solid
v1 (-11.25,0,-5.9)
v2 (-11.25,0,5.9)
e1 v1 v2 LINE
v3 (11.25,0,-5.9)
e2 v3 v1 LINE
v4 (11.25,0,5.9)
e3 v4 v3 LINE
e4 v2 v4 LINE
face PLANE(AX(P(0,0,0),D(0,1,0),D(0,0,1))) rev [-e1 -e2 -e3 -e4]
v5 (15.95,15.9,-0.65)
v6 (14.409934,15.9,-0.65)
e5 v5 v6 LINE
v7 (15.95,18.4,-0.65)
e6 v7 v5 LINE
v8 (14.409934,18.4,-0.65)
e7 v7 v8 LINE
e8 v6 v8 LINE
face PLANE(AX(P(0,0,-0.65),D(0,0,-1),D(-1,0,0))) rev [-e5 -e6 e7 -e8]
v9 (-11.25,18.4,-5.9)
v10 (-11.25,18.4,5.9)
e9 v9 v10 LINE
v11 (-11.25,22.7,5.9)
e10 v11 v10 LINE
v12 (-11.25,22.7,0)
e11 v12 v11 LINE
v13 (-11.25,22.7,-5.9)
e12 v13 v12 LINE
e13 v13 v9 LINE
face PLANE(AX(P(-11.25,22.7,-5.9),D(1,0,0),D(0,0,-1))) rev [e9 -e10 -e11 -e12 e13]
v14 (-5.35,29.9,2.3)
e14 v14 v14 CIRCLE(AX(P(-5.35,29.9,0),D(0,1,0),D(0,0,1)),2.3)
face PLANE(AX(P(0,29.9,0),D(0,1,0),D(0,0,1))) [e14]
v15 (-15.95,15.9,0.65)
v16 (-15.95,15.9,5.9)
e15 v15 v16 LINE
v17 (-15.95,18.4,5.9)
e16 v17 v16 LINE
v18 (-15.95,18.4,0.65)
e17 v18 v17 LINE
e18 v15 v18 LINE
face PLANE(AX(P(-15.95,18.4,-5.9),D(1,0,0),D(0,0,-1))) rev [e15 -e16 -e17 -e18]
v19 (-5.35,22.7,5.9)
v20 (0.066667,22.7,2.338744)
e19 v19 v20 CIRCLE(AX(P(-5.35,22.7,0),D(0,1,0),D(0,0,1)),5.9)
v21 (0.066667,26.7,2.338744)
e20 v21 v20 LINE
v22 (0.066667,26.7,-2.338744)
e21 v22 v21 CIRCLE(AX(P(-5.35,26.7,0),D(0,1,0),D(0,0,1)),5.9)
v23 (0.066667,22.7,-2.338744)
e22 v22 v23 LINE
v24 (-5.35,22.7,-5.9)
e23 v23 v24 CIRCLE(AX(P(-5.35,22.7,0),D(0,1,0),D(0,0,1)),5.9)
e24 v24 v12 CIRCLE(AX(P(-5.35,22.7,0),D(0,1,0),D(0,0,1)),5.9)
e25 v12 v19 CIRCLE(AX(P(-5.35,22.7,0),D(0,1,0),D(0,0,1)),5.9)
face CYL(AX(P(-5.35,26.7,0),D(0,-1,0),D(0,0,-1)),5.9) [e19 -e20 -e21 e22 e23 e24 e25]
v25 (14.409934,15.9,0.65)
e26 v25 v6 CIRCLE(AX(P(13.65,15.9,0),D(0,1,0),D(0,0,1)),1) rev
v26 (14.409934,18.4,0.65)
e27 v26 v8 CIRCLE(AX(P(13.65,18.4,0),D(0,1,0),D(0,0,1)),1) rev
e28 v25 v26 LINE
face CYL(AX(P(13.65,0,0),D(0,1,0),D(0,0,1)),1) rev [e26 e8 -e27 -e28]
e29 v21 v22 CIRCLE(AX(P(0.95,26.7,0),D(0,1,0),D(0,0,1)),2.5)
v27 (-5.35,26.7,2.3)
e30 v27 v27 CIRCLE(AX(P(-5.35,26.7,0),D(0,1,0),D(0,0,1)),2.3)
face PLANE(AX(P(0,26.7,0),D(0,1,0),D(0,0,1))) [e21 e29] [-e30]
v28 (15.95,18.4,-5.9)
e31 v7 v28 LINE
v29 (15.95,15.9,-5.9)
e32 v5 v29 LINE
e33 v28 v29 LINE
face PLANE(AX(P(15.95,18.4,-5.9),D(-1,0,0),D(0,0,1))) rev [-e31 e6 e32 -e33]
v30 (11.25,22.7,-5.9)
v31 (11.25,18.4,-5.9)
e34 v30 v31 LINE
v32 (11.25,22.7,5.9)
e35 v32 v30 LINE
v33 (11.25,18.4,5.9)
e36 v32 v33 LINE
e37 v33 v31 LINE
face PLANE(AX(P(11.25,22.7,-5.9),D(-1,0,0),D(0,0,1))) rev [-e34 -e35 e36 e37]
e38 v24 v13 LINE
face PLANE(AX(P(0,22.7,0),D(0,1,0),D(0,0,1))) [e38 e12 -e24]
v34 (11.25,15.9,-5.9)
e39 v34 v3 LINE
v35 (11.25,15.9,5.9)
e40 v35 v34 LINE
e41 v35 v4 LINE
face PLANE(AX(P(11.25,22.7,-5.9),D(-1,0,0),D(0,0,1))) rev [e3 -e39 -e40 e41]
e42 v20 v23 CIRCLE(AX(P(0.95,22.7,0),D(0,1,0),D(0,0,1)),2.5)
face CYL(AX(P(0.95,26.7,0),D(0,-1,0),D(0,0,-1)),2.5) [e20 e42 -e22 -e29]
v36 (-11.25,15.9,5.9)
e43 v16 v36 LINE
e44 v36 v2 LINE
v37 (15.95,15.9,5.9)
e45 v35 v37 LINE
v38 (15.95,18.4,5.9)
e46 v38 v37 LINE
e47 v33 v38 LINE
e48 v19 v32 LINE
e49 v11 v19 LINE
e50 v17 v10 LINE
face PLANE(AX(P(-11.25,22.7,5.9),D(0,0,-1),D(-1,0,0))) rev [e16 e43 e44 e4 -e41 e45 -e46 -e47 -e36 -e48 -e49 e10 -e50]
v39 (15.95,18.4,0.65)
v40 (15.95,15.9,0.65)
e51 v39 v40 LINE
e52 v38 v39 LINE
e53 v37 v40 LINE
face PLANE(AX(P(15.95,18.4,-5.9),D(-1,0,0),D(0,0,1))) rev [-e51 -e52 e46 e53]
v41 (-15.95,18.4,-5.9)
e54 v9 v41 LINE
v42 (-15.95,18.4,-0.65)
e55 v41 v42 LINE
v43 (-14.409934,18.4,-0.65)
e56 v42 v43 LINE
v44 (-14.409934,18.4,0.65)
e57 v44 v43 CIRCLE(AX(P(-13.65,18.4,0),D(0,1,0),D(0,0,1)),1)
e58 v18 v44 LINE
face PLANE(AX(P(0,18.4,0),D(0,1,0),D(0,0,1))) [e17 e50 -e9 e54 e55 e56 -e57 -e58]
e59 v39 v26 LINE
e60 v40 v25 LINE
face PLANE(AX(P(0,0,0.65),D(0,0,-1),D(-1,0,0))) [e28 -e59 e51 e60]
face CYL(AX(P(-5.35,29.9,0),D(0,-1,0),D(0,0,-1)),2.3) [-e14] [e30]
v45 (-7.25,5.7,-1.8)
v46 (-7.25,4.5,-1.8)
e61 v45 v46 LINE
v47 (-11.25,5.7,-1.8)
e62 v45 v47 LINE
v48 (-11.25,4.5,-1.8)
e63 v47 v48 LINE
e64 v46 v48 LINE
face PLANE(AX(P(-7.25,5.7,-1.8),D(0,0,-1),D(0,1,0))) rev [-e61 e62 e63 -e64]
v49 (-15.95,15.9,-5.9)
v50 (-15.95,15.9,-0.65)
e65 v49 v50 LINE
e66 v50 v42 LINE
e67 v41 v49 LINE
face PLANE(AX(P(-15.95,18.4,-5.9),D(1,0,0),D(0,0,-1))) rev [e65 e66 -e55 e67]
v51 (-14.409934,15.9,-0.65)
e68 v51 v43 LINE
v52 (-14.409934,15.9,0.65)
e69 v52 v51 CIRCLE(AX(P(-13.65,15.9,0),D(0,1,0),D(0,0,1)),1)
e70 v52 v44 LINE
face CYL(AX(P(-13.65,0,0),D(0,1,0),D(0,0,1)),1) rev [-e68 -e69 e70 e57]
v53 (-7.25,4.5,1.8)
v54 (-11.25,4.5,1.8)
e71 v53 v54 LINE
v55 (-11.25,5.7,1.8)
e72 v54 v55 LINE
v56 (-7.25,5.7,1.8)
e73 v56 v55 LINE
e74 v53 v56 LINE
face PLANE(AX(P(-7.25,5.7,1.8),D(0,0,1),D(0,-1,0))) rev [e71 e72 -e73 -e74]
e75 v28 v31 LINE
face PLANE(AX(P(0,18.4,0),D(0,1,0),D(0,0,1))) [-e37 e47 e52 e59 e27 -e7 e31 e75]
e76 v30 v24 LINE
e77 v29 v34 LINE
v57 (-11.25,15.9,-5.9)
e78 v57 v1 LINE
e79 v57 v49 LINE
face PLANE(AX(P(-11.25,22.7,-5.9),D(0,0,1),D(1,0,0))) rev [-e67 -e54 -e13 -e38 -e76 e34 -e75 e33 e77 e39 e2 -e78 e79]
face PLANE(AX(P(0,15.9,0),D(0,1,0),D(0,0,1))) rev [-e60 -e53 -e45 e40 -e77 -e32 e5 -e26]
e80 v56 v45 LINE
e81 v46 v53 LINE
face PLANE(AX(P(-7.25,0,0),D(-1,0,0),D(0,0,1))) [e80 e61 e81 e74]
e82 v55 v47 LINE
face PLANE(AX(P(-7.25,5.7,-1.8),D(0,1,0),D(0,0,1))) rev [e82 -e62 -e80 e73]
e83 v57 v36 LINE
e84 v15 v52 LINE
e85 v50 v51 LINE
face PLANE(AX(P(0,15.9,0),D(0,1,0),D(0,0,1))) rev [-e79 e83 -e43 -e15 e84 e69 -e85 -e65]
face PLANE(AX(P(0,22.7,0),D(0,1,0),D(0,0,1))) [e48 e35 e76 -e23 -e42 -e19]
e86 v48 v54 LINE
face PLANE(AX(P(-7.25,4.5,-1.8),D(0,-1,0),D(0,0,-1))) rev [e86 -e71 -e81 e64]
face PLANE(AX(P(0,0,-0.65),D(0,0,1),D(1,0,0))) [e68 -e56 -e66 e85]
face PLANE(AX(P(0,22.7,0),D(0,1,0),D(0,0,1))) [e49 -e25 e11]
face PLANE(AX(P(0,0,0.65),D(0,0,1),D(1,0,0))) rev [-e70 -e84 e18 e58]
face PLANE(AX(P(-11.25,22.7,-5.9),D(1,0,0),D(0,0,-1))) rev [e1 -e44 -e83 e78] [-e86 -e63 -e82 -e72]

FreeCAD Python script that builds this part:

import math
import FreeCAD as App
import Part
import Sketcher

V = App.Vector


def add_polygon(sketch, points):
    """Adds a closed chain of lines whose ends are joined by coincident constraints."""
    first, n = sketch.GeometryCount, len(points)
    for a, b in zip(points, points[1:] + points[:1]):
        sketch.addGeometry(Part.LineSegment(App.Vector(*a, 0), App.Vector(*b, 0)), False)
    for i in range(n):
        sketch.addConstraint(Sketcher.Constraint("Coincident", first + i, 2, first + (i + 1) % n, 1))

doc = App.newDocument("Part")
params = doc.addObject("Spreadsheet::Sheet", "Params")
for row, (alias, value) in enumerate([
    ("sketch1_width", "22.5 mm"),
    ("sketch1_height", "11.8 mm"),
    ("pad1_length", "22.7 mm"),
    ("sketch2_width", "31.9 mm"),
    ("sketch2_height", "11.8 mm"),
    ("pad2_length", "2.5 mm"),
    ("sketch3_radius", "1 mm"),
    ("sketch3_height", "1.3 mm"),
    ("sketch4_diameter", "4.6 mm"),
    ("sketch4_radius", "2.5 mm"),
    ("sketch4_radius2", "5.9 mm"),
    ("pad3_length", "4 mm"),
    ("sketch5_diameter", "4.6 mm"),
    ("pad4_length", "7.2 mm"),
    ("sketch6_width", "1.2 mm"),
    ("sketch6_height", "3.6 mm"),
    ("pocket2_length", "4 mm"),
], start=1):
    params.set(f"A{row}", alias)
    params.set(f"B{row}", "=" + value)
    params.setAlias(f"B{row}", alias)

body = doc.addObject("PartDesign::Body", "Body")

sketch1 = body.newObject("Sketcher::SketchObject", "Sketch")
sketch1.AttachmentSupport = (doc.getObject("XZ_Plane"), [""])
sketch1.MapMode = "FlatFace"
add_polygon(sketch1, [(-11, -6), (-11, 6), (11, 6), (11, -6)])
sketch1.addConstraint(Sketcher.Constraint("Vertical", 0))
sketch1.addConstraint(Sketcher.Constraint("Horizontal", 1))
sketch1.addConstraint(Sketcher.Constraint("Vertical", 2))
sketch1.addConstraint(Sketcher.Constraint("Horizontal", 3))
sketch1.addConstraint(Sketcher.Constraint("Symmetric", 0, 2, 2, 2, -1, 1))
sketch1.addConstraint(Sketcher.Constraint("DistanceX", 1, 1, 1, 2, 22.5))
sketch1.addConstraint(Sketcher.Constraint("DistanceY", 0, 1, 0, 2, 11.8))
sketch1.setExpression("Constraints[9]", "Params.sketch1_width")
sketch1.setExpression("Constraints[10]", "Params.sketch1_height")
pad1 = body.newObject("PartDesign::Pad", "Pad")
pad1.Profile = sketch1
pad1.setExpression("Length", "Params.pad1_length")
pad1.Reversed = True

sketch2 = body.newObject("Sketcher::SketchObject", "Sketch001")
sketch2.AttachmentSupport = (doc.getObject("XZ_Plane"), [""])
sketch2.MapMode = "FlatFace"
sketch2.AttachmentOffset = App.Placement(V(0, 0, -15.9), App.Rotation())
add_polygon(sketch2, [(-16, -6), (-16, 6), (16, 6), (16, -6)])
sketch2.addConstraint(Sketcher.Constraint("Vertical", 0))
sketch2.addConstraint(Sketcher.Constraint("Horizontal", 1))
sketch2.addConstraint(Sketcher.Constraint("Vertical", 2))
sketch2.addConstraint(Sketcher.Constraint("Horizontal", 3))
sketch2.addConstraint(Sketcher.Constraint("Symmetric", 0, 2, 2, 2, -1, 1))
sketch2.addConstraint(Sketcher.Constraint("DistanceX", 1, 1, 1, 2, 31.9))
sketch2.addConstraint(Sketcher.Constraint("DistanceY", 0, 1, 0, 2, 11.8))
sketch2.setExpression("Constraints[9]", "Params.sketch2_width")
sketch2.setExpression("Constraints[10]", "Params.sketch2_height")
pad2 = body.newObject("PartDesign::Pad", "Pad001")
pad2.Profile = sketch2
pad2.setExpression("Length", "Params.pad2_length")
pad2.Reversed = True

sketch3 = body.newObject("Sketcher::SketchObject", "Sketch002")
sketch3.AttachmentSupport = (doc.getObject("XZ_Plane"), [""])
sketch3.MapMode = "FlatFace"
sketch3.AttachmentOffset = App.Placement(V(0, 0, -18.4), App.Rotation())
sketch3.addGeometry(Part.LineSegment(V(-14.4, -0.7, 0), V(-15.9, -0.7, 0)), False)
sketch3.addGeometry(Part.LineSegment(V(-15.9, -0.7, 0), V(-15.9, 0.7, 0)), False)
sketch3.addGeometry(Part.LineSegment(V(-15.9, 0.7, 0), V(-14.4, 0.7, 0)), False)
sketch3.addGeometry(Part.ArcOfCircle(Part.Circle(V(-13.7, 0, 0), V(0, 0, 1), 1), math.radians(-139), math.radians(139)), False)
sketch3.addGeometry(Part.ArcOfCircle(Part.Circle(V(13.7, 0, 0), V(0, 0, 1), 1), math.radians(41), math.radians(319)), False)
sketch3.addGeometry(Part.LineSegment(V(14.4, 0.7, 0), V(15.9, 0.7, 0)), False)
sketch3.addGeometry(Part.LineSegment(V(15.9, 0.7, 0), V(15.9, -0.7, 0)), False)
sketch3.addGeometry(Part.LineSegment(V(15.9, -0.7, 0), V(14.4, -0.7, 0)), False)
sketch3.addConstraint(Sketcher.Constraint("Coincident", 0, 2, 1, 1))
sketch3.addConstraint(Sketcher.Constraint("Coincident", 1, 2, 2, 1))
sketch3.addConstraint(Sketcher.Constraint("Coincident", 2, 2, 3, 2))
sketch3.addConstraint(Sketcher.Constraint("Coincident", 3, 1, 0, 1))
sketch3.addConstraint(Sketcher.Constraint("Coincident", 4, 1, 5, 1))
sketch3.addConstraint(Sketcher.Constraint("Coincident", 5, 2, 6, 1))
sketch3.addConstraint(Sketcher.Constraint("Coincident", 6, 2, 7, 1))
sketch3.addConstraint(Sketcher.Constraint("Coincident", 7, 2, 4, 2))
sketch3.addConstraint(Sketcher.Constraint("Horizontal", 0))
sketch3.addConstraint(Sketcher.Constraint("Vertical", 1))
sketch3.addConstraint(Sketcher.Constraint("Horizontal", 2))
sketch3.addConstraint(Sketcher.Constraint("Horizontal", 5))
sketch3.addConstraint(Sketcher.Constraint("Vertical", 6))
sketch3.addConstraint(Sketcher.Constraint("Horizontal", 7))
sketch3.addConstraint(Sketcher.Constraint("Equal", 3, 4))
sketch3.addConstraint(Sketcher.Constraint("Symmetric", 3, 3, 4, 3, -1, 1))
sketch3.addConstraint(Sketcher.Constraint("Symmetric", 0, 2, 5, 2, -1, 1))
sketch3.addConstraint(Sketcher.Constraint("Symmetric", 2, 2, 4, 1, -2))
sketch3.addConstraint(Sketcher.Constraint("Horizontal", 3, 1, 6, 2))
sketch3.addConstraint(Sketcher.Constraint("Radius", 3, 1.0))
sketch3.addConstraint(Sketcher.Constraint("DistanceY", 1, 1, 1, 2, 1.3))
sketch3.addConstraint(Sketcher.Constraint("DistanceX", 3, 3, 4, 3, 27.3))
sketch3.addConstraint(Sketcher.Constraint("DistanceX", 0, 2, 3, 3, 2.3))
sketch3.setExpression("Constraints[19]", "Params.sketch3_radius")
sketch3.setExpression("Constraints[20]", "Params.sketch3_height")
pocket1 = body.newObject("PartDesign::Pocket", "Pocket")
pocket1.Profile = sketch3
pocket1.Type = "ThroughAll"
pocket1.Reversed = True

sketch4 = body.newObject("Sketcher::SketchObject", "Sketch003")
sketch4.AttachmentSupport = (doc.getObject("XZ_Plane"), [""])
sketch4.MapMode = "FlatFace"
sketch4.AttachmentOffset = App.Placement(V(0, 0, -22.7), App.Rotation())
sketch4.addGeometry(Part.ArcOfCircle(Part.Circle(V(0.9, 0, 0), V(0, 0, 1), 2.5), math.radians(-111), math.radians(111)), False)
sketch4.addGeometry(Part.ArcOfCircle(Part.Circle(V(-5.3, 0, 0), V(0, 0, 1), 5.9), math.radians(23), math.radians(337)), False)
sketch4.addGeometry(Part.Circle(V(-5.3, 0, 0), V(0, 0, 1), 2.3), False)
sketch4.addConstraint(Sketcher.Constraint("Coincident", 0, 1, 1, 2))
sketch4.addConstraint(Sketcher.Constraint("Coincident", 1, 1, 0, 2))
sketch4.addConstraint(Sketcher.Constraint("Coincident", 2, 3, 1, 3))
sketch4.addConstraint(Sketcher.Constraint("Symmetric", 0, 1, 1, 1, -1))
sketch4.addConstraint(Sketcher.Constraint("Diameter", 2, 4.6))
sketch4.addConstraint(Sketcher.Constraint("Radius", 0, 2.5))
sketch4.addConstraint(Sketcher.Constraint("Radius", 1, 5.9))
sketch4.addConstraint(Sketcher.Constraint("DistanceX", 1, 3, 0, 3, 6.3))
sketch4.addConstraint(Sketcher.Constraint("DistanceX", -1, 1, 0, 3, 0.95))
sketch4.setExpression("Constraints[4]", "Params.sketch4_diameter")
sketch4.setExpression("Constraints[5]", "Params.sketch4_radius")
sketch4.setExpression("Constraints[6]", "Params.sketch4_radius2")
pad3 = body.newObject("PartDesign::Pad", "Pad002")
pad3.Profile = sketch4
pad3.setExpression("Length", "Params.pad3_length")
pad3.Reversed = True

sketch5 = body.newObject("Sketcher::SketchObject", "Sketch004")
sketch5.AttachmentSupport = (doc.getObject("XZ_Plane"), [""])
sketch5.MapMode = "FlatFace"
sketch5.AttachmentOffset = App.Placement(V(0, 0, -22.7), App.Rotation())
sketch5.addGeometry(Part.Circle(V(-5.3, 0, 0), V(0, 0, 1), 2.3), False)
sketch5.addConstraint(Sketcher.Constraint("PointOnObject", 0, 3, -1))
sketch5.addConstraint(Sketcher.Constraint("Diameter", 0, 4.6))
sketch5.addConstraint(Sketcher.Constraint("DistanceX", 0, 3, -1, 1, 5.35))
sketch5.setExpression("Constraints[1]", "Params.sketch5_diameter")
pad4 = body.newObject("PartDesign::Pad", "Pad003")
pad4.Profile = sketch5
pad4.setExpression("Length", "Params.pad4_length")
pad4.Reversed = True

sketch6 = body.newObject("Sketcher::SketchObject", "Sketch005")
sketch6.AttachmentSupport = (doc.getObject("YZ_Plane"), [""])
sketch6.MapMode = "FlatFace"
sketch6.AttachmentOffset = App.Placement(V(0, 0, -11.25), App.Rotation())
add_polygon(sketch6, [(5.7, -1.8), (4.5, -1.8), (4.5, 1.8), (5.7, 1.8)])
sketch6.addConstraint(Sketcher.Constraint("Horizontal", 0))
sketch6.addConstraint(Sketcher.Constraint("Vertical", 1))
sketch6.addConstraint(Sketcher.Constraint("Horizontal", 2))
sketch6.addConstraint(Sketcher.Constraint("Vertical", 3))
sketch6.addConstraint(Sketcher.Constraint("DistanceX", 0, 2, 0, 1, 1.2))
sketch6.addConstraint(Sketcher.Constraint("DistanceY", 1, 1, 1, 2, 3.6))
sketch6.addConstraint(Sketcher.Constraint("DistanceX", -1, 1, 0, 2, 4.5))
sketch6.addConstraint(Sketcher.Constraint("DistanceY", 0, 2, -1, 1, 1.8))
sketch6.setExpression("Constraints[8]", "Params.sketch6_width")
sketch6.setExpression("Constraints[9]", "Params.sketch6_height")
pocket2 = body.newObject("PartDesign::Pocket", "Pocket001")
pocket2.Profile = sketch6
pocket2.setExpression("Length", "Params.pocket2_length")
pocket2.Reversed = True

doc.recompute()
